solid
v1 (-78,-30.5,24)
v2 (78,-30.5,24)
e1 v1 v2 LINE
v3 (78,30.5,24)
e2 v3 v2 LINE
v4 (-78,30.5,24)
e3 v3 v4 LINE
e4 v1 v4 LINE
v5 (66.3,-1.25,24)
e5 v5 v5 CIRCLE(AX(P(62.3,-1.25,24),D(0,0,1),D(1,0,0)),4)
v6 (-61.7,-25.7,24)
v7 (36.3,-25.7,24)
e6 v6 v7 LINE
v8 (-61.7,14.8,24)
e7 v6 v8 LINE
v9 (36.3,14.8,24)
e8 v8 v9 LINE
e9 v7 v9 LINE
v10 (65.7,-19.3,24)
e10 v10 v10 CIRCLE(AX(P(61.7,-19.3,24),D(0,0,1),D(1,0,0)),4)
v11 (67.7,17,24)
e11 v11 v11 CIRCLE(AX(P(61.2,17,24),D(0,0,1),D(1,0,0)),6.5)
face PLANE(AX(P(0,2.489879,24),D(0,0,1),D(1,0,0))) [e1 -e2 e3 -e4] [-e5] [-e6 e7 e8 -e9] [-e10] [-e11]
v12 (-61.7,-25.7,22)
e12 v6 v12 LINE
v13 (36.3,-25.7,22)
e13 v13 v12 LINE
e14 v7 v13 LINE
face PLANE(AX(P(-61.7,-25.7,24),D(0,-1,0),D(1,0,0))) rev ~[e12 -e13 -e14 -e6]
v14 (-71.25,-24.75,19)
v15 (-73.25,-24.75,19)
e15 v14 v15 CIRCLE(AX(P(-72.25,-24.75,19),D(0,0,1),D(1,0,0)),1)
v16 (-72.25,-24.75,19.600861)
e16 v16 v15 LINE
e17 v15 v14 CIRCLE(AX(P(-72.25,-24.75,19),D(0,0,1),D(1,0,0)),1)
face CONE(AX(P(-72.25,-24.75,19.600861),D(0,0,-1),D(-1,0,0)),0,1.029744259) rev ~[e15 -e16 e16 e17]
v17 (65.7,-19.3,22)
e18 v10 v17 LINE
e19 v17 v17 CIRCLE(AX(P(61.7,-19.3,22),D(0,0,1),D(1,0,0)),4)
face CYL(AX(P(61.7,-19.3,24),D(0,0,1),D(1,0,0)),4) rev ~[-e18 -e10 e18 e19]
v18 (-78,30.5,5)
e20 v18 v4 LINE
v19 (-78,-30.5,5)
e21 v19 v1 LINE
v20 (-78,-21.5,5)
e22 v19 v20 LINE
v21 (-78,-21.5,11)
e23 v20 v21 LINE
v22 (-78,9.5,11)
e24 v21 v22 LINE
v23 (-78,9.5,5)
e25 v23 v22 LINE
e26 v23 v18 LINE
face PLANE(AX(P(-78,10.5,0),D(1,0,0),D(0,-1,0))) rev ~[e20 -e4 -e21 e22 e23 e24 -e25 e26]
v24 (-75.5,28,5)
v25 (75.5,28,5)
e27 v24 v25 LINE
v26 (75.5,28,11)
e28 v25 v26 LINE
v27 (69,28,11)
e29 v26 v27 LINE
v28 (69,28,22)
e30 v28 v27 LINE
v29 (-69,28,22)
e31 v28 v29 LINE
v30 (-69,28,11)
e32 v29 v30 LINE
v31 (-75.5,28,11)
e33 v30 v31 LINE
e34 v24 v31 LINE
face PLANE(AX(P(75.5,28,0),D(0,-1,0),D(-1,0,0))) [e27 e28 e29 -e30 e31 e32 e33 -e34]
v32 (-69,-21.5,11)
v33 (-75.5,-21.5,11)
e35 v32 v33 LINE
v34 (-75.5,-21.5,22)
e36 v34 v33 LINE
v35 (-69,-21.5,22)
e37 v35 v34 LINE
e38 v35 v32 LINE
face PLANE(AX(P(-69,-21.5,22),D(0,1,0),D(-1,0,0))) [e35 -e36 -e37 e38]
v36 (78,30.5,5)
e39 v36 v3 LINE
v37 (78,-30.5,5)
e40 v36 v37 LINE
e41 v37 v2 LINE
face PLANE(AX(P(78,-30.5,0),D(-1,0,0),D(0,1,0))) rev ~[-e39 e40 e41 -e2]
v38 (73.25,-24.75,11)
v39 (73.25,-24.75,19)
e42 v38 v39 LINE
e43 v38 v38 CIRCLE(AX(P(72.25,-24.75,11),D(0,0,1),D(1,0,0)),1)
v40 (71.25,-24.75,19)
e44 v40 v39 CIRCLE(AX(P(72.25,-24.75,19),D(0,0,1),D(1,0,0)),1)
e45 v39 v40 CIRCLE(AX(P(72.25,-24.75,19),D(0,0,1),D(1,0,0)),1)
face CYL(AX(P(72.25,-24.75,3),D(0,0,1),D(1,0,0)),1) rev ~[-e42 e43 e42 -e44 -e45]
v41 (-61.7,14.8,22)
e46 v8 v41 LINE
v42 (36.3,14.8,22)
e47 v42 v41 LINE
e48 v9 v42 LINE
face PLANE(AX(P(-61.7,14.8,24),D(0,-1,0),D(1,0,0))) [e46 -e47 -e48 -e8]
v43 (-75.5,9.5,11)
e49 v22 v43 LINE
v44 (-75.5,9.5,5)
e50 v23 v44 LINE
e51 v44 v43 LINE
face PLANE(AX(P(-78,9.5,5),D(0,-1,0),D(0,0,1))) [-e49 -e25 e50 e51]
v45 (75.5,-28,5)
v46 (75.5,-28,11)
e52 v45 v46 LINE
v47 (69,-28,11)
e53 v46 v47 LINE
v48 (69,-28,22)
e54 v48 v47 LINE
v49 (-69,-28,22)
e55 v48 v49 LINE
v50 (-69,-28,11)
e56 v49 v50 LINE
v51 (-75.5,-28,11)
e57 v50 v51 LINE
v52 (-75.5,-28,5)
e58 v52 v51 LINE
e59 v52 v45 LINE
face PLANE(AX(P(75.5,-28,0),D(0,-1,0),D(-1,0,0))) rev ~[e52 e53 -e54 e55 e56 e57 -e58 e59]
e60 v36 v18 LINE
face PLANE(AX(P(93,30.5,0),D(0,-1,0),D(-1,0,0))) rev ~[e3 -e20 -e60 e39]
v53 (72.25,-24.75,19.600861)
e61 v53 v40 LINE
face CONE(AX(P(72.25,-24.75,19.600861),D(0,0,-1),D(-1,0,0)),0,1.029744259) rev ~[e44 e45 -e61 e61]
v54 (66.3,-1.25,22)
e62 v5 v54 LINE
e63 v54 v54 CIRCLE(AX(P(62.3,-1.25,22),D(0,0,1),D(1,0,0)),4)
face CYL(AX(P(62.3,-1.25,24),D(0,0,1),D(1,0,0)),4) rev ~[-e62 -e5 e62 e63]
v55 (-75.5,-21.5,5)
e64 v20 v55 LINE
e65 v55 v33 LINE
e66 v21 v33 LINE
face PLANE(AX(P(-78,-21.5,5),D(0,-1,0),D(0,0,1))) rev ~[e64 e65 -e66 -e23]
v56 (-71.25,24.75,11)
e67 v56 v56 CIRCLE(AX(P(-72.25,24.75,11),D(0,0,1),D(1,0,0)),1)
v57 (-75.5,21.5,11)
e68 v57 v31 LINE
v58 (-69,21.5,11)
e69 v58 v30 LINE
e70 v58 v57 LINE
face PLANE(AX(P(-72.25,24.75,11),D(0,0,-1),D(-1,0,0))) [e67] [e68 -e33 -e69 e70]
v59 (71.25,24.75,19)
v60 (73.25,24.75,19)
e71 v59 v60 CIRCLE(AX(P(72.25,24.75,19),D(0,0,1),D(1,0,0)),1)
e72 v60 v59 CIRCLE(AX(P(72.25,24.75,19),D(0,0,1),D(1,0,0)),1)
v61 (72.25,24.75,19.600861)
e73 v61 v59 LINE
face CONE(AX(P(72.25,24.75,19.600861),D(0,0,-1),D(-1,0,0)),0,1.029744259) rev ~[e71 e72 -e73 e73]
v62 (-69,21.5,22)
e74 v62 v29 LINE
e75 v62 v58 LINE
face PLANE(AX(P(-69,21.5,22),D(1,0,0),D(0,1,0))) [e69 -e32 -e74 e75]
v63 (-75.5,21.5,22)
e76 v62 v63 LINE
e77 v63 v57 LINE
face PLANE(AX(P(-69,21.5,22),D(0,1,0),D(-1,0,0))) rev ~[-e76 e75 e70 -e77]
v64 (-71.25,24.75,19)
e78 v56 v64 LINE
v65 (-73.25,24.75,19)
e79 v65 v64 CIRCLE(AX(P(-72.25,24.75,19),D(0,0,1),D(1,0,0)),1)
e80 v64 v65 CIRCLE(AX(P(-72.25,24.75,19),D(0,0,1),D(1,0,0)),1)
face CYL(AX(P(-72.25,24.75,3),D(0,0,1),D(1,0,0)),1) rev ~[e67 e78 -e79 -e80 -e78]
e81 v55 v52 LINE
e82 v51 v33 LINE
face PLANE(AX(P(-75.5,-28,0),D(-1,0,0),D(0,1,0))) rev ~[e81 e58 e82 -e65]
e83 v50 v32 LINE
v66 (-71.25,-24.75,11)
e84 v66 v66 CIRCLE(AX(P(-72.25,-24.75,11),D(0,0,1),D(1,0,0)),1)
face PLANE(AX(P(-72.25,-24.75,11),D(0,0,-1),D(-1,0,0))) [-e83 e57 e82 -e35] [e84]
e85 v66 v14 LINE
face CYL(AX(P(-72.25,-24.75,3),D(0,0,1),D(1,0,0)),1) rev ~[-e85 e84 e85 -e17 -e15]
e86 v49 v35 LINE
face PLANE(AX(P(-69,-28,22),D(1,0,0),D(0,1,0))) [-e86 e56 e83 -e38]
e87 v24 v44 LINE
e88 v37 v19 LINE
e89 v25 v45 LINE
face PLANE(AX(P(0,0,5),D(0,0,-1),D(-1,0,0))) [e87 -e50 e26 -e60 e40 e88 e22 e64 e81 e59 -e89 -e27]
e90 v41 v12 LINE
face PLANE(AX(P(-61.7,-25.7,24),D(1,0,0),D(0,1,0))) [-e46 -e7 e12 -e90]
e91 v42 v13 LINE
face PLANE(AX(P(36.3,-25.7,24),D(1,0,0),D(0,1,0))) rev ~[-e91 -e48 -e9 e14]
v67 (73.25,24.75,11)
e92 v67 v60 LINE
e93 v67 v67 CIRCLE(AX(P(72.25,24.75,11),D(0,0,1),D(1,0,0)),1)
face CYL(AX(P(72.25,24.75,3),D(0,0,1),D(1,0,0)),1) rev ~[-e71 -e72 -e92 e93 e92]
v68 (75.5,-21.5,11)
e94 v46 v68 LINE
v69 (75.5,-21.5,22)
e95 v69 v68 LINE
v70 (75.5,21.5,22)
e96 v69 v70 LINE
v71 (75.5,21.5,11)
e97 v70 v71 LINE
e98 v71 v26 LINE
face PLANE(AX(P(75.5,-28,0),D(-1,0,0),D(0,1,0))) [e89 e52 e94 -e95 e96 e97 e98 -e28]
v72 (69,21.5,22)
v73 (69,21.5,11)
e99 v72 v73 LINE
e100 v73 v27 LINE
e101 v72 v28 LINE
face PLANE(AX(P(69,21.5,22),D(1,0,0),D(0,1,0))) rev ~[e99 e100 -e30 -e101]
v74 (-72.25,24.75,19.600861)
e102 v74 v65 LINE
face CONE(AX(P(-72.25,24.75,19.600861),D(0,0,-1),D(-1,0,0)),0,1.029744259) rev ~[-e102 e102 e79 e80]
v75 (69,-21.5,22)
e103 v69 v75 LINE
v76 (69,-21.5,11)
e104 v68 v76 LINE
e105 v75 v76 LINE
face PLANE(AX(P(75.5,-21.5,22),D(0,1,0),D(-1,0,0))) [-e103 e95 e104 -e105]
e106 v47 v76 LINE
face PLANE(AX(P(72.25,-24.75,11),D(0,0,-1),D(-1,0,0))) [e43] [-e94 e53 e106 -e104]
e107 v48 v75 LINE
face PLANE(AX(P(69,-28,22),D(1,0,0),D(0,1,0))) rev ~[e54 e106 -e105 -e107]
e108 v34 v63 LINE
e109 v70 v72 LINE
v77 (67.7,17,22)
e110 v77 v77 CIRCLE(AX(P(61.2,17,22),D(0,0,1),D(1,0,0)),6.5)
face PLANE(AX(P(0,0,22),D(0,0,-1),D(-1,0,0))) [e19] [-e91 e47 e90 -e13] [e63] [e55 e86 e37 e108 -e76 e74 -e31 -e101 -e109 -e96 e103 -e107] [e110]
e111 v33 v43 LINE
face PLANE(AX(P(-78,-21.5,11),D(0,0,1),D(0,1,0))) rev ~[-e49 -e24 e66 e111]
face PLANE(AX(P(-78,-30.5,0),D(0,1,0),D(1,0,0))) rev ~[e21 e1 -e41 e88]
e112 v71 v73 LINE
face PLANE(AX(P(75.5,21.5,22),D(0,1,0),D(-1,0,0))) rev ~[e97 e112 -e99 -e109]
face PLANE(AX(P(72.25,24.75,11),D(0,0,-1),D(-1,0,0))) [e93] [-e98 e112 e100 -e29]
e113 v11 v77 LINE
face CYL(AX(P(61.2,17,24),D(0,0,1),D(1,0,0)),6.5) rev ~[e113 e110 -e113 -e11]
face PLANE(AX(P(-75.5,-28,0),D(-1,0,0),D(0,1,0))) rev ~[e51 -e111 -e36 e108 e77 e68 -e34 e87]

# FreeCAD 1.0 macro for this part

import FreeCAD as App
import Part
import Sketcher
Q = App.Units.Quantity


def add_polygon(sketch, points):
    """Adds a closed chain of lines whose ends are joined by coincident constraints."""
    first, n = sketch.GeometryCount, len(points)
    for a, b in zip(points, points[1:] + points[:1]):
        sketch.addGeometry(Part.LineSegment(App.Vector(*a, 0), App.Vector(*b, 0)), False)
    for i in range(n):
        sketch.addConstraint(Sketcher.Constraint("Coincident", first + i, 2, first + (i + 1) % n, 1))

doc = App.newDocument("Part")
body = doc.addObject("PartDesign::Body", "Body")

# Sketch on XY plane
sketch1 = body.newObject("Sketcher::SketchObject", "Sketch")
sketch1.AttachmentSupport = (doc.getObject("XY_Plane"), [""])
sketch1.MapMode = "FlatFace"
add_polygon(sketch1, [(-93, 10.5), (-78, 10.5), (-78, -30.5), (78, -30.5), (78, 10.5), (93, 10.5), (93, 30.5), (-93, 30.5)])  # lines 0-7
sketch1.addConstraint(Sketcher.Constraint("Horizontal", 0))
sketch1.addConstraint(Sketcher.Constraint("Vertical", 1))
sketch1.addConstraint(Sketcher.Constraint("Horizontal", 2))
sketch1.addConstraint(Sketcher.Constraint("Vertical", 3))
sketch1.addConstraint(Sketcher.Constraint("Horizontal", 4))
sketch1.addConstraint(Sketcher.Constraint("Vertical", 5))
sketch1.addConstraint(Sketcher.Constraint("Horizontal", 6))
sketch1.addConstraint(Sketcher.Constraint("Vertical", 7))
sketch1.addConstraint(Sketcher.Constraint("Symmetric", 0, 2, 3, 2, -2))
sketch1.addConstraint(Sketcher.Constraint("Equal", 0, 4))
sketch1.addConstraint(Sketcher.Constraint("DistanceX", 0, 1, 0, 2, Q("15 mm")))
sketch1.addConstraint(Sketcher.Constraint("DistanceX", 2, 1, 2, 2, Q("156 mm")))
sketch1.addConstraint(Sketcher.Constraint("DistanceY", 1, 2, 1, 1, Q("41 mm")))
sketch1.addConstraint(Sketcher.Constraint("DistanceY", 5, 1, 5, 2, Q("20 mm")))
sketch1.addConstraint(Sketcher.Constraint("DistanceY", -1, 1, 0, 2, Q("10.5 mm")))
pad1 = body.newObject("PartDesign::Pad", "Pad")
pad1.Profile = sketch1
pad1.Length = 24

# Sketch on XY plane
sketch2 = body.newObject("Sketcher::SketchObject", "Sketch001")
sketch2.AttachmentSupport = (doc.getObject("XY_Plane"), [""])
sketch2.MapMode = "FlatFace"
add_polygon(sketch2, [(75.5, 28), (75.5, -28), (-75.5, -28), (-75.5, 28)])  # lines 0-3
sketch2.addConstraint(Sketcher.Constraint("Vertical", 0))
sketch2.addConstraint(Sketcher.Constraint("Horizontal", 1))
sketch2.addConstraint(Sketcher.Constraint("Vertical", 2))
sketch2.addConstraint(Sketcher.Constraint("Horizontal", 3))
sketch2.addConstraint(Sketcher.Constraint("Symmetric", 0, 2, 2, 2, -1, 1))
sketch2.addConstraint(Sketcher.Constraint("DistanceX", 1, 2, 1, 1, Q("151 mm")))
sketch2.addConstraint(Sketcher.Constraint("DistanceY", 0, 2, 0, 1, Q("56 mm")))
pocket1 = body.newObject("PartDesign::Pocket", "Pocket")
pocket1.Profile = sketch2
pocket1.Length = 22
pocket1.Reversed = True

# Sketch on XY plane
sketch3 = body.newObject("Sketcher::SketchObject", "Sketch002")
sketch3.AttachmentSupport = (doc.getObject("XY_Plane"), [""])
sketch3.MapMode = "FlatFace"
add_polygon(sketch3, [(78, 30.5), (78, -30.5), (-78, -30.5), (-78, 30.5)])  # lines 0-3
sketch3.addConstraint(Sketcher.Constraint("Vertical", 0))
sketch3.addConstraint(Sketcher.Constraint("Horizontal", 1))
sketch3.addConstraint(Sketcher.Constraint("Vertical", 2))
sketch3.addConstraint(Sketcher.Constraint("Horizontal", 3))
sketch3.addConstraint(Sketcher.Constraint("Symmetric", 0, 2, 2, 2, -1, 1))
sketch3.addConstraint(Sketcher.Constraint("DistanceX", 1, 2, 1, 1, Q("156 mm")))
sketch3.addConstraint(Sketcher.Constraint("DistanceY", 0, 2, 0, 1, Q("61 mm")))
pocket2 = body.newObject("PartDesign::Pocket", "Pocket001")
pocket2.Profile = sketch3
pocket2.Length = 5
pocket2.Reversed = True

# Sketch on XY plane
sketch4 = body.newObject("Sketcher::SketchObject", "Sketch003")
sketch4.AttachmentSupport = (doc.getObject("XY_Plane"), [""])
sketch4.MapMode = "FlatFace"
sketch4.AttachmentOffset = App.Placement(App.Vector(0, 0, 24), App.Rotation())
sketch4.addGeometry(Part.Circle(App.Vector(61.2, 17, 0), App.Vector(0, 0, 1), 6.5), False)  # 0
sketch4.addGeometry(Part.Circle(App.Vector(62.3, -1.25, 0), App.Vector(0, 0, 1), 4), False)  # 1
sketch4.addGeometry(Part.Circle(App.Vector(61.7, -19.3, 0), App.Vector(0, 0, 1), 4), False)  # 2
add_polygon(sketch4, [(-61.7, 14.8), (-61.7, -25.7), (36.3, -25.7), (36.3, 14.8)])  # lines 3-6
sketch4.addConstraint(Sketcher.Constraint("Vertical", 3))
sketch4.addConstraint(Sketcher.Constraint("Horizontal", 4))
sketch4.addConstraint(Sketcher.Constraint("Vertical", 5))
sketch4.addConstraint(Sketcher.Constraint("Horizontal", 6))
sketch4.addConstraint(Sketcher.Constraint("Equal", 1, 2))
sketch4.addConstraint(Sketcher.Constraint("Diameter", 0, Q("13 mm")))
sketch4.addConstraint(Sketcher.Constraint("Diameter", 1, Q("8 mm")))
sketch4.addConstraint(Sketcher.Constraint("DistanceX", 4, 1, 4, 2, Q("98 mm")))
sketch4.addConstraint(Sketcher.Constraint("DistanceY", 3, 2, 3, 1, Q("40.5 mm")))
sketch4.addConstraint(Sketcher.Constraint("DistanceY", -1, 1, 0, 3, Q("17 mm")))
sketch4.addConstraint(Sketcher.Constraint("DistanceX", 3, 2, 1, 3, Q("124 mm")))
sketch4.addConstraint(Sketcher.Constraint("DistanceX", -1, 1, 0, 3, Q("61.2 mm")))
sketch4.addConstraint(Sketcher.Constraint("DistanceX", -1, 1, 1, 3, Q("62.3 mm")))
sketch4.addConstraint(Sketcher.Constraint("DistanceX", -1, 1, 2, 3, Q("61.7 mm")))
sketch4.addConstraint(Sketcher.Constraint("DistanceY", 2, 3, -1, 1, Q("19.3 mm")))
sketch4.addConstraint(Sketcher.Constraint("DistanceY", 3, 2, -1, 1, Q("25.7 mm")))
sketch4.addConstraint(Sketcher.Constraint("DistanceY", 1, 3, -1, 1, Q("1.25 mm")))
pocket3 = body.newObject("PartDesign::Pocket", "Pocket002")
pocket3.Profile = sketch4
pocket3.Length = 4

# Sketch on XY plane
sketch5 = body.newObject("Sketcher::SketchObject", "Sketch004")
sketch5.AttachmentSupport = (doc.getObject("XY_Plane"), [""])
sketch5.MapMode = "FlatFace"
sketch5.AttachmentOffset = App.Placement(App.Vector(0, 0, 24), App.Rotation())
sketch5.addGeometry(Part.Circle(App.Vector(-85, 20.5, 0), App.Vector(0, 0, 1), 2.25), False)
sketch5.addGeometry(Part.Circle(App.Vector(85, 20.376125, 0), App.Vector(0, 0, 1), 2.25), False)
sketch5.addConstraint(Sketcher.Constraint("Equal", 0, 1))
sketch5.addConstraint(Sketcher.Constraint("Diameter", 0, Q("4.5 mm")))
sketch5.addConstraint(Sketcher.Constraint("DistanceX", 0, 3, -1, 1, Q("85 mm")))
sketch5.addConstraint(Sketcher.Constraint("DistanceX", -1, 1, 1, 3, Q("85 mm")))
sketch5.addConstraint(Sketcher.Constraint("DistanceY", -1, 1, 0, 3, Q("20.5 mm")))
sketch5.addConstraint(Sketcher.Constraint("DistanceY", -1, 1, 1, 3, Q("20.376125 mm")))
doc.recompute()
hole = body.newObject("PartDesign::Hole", "Hole")
hole.Profile = sketch5
hole.ThreadType = "None"
hole.Diameter = 4.5
hole.DepthType = "ThroughAll"
hole.HoleCutType = "Counterbore"
hole.HoleCutDiameter = 8
hole.HoleCutDepth = 4.4

# Sketch on XY plane
sketch6 = body.newObject("Sketcher::SketchObject", "Sketch005")
sketch6.AttachmentSupport = (doc.getObject("XY_Plane"), [""])
sketch6.MapMode = "FlatFace"
sketch6.AttachmentOffset = App.Placement(App.Vector(0, 0, 22), App.Rotation())
add_polygon(sketch6, [(75.5, 28), (75.5, 21.5), (69, 21.5), (69, 28)])  # lines 0-3
add_polygon(sketch6, [(75.5, -21.5), (75.5, -28), (69, -28), (69, -21.5)])  # lines 4-7
add_polygon(sketch6, [(-69, 28), (-69, 21.5), (-75.5, 21.5), (-75.5, 28)])  # lines 8-11
add_polygon(sketch6, [(-69, -21.5), (-69, -28), (-75.5, -28), (-75.5, -21.5)])  # lines 12-15
sketch6.addConstraint(Sketcher.Constraint("Vertical", 0))
sketch6.addConstraint(Sketcher.Constraint("Horizontal", 1))
sketch6.addConstraint(Sketcher.Constraint("Vertical", 2))
sketch6.addConstraint(Sketcher.Constraint("Horizontal", 3))
sketch6.addConstraint(Sketcher.Constraint("Vertical", 4))
sketch6.addConstraint(Sketcher.Constraint("Horizontal", 5))
sketch6.addConstraint(Sketcher.Constraint("Vertical", 6))
sketch6.addConstraint(Sketcher.Constraint("Horizontal", 7))
sketch6.addConstraint(Sketcher.Constraint("Vertical", 8))
sketch6.addConstraint(Sketcher.Constraint("Horizontal", 9))
sketch6.addConstraint(Sketcher.Constraint("Vertical", 10))
sketch6.addConstraint(Sketcher.Constraint("Horizontal", 11))
sketch6.addConstraint(Sketcher.Constraint("Vertical", 12))
sketch6.addConstraint(Sketcher.Constraint("Horizontal", 13))
sketch6.addConstraint(Sketcher.Constraint("Vertical", 14))
sketch6.addConstraint(Sketcher.Constraint("Horizontal", 15))
sketch6.addConstraint(Sketcher.Constraint("Symmetric", 6, 2, 8, 2, -1, 1))
sketch6.addConstraint(Sketcher.Constraint("Symmetric", 4, 2, 10, 2, -1, 1))
sketch6.addConstraint(Sketcher.Constraint("Symmetric", 2, 2, 12, 2, -1, 1))
sketch6.addConstraint(Sketcher.Constraint("Symmetric", 0, 2, 14, 2, -1, 1))
sketch6.addConstraint(Sketcher.Constraint("Symmetric", 1, 2, 8, 2, -2))
sketch6.addConstraint(Sketcher.Constraint("Symmetric", 3, 2, 10, 2, -2))
sketch6.addConstraint(Sketcher.Constraint("Equal", 15, 0))
sketch6.addConstraint(Sketcher.Constraint("DistanceX", 1, 2, 1, 1, Q("6.5 mm")))
sketch6.addConstraint(Sketcher.Constraint("DistanceX", -1, 1, 1, 2, Q("69 mm")))
sketch6.addConstraint(Sketcher.Constraint("DistanceY", -1, 1, 2, 2, Q("28 mm")))
pad2 = body.newObject("PartDesign::Pad", "Pad001")
pad2.Profile = sketch6
pad2.Length = 11
pad2.Reversed = True

# Sketch on XY plane
sketch7 = body.newObject("Sketcher::SketchObject", "Sketch006")
sketch7.AttachmentSupport = (doc.getObject("XY_Plane"), [""])
sketch7.MapMode = "FlatFace"
sketch7.AttachmentOffset = App.Placement(App.Vector(0, 0, 11), App.Rotation())
sketch7.addGeometry(Part.Circle(App.Vector(72.25, 24.75, 0), App.Vector(0, 0, 1), 1), False)
sketch7.addGeometry(Part.Circle(App.Vector(72.25, -24.75, 0), App.Vector(0, 0, 1), 1), False)
sketch7.addGeometry(Part.Circle(App.Vector(-72.25, 24.75, 0), App.Vector(0, 0, 1), 1), False)
sketch7.addGeometry(Part.Circle(App.Vector(-72.25, -24.75, 0), App.Vector(0, 0, 1), 1), False)
sketch7.addConstraint(Sketcher.Constraint("Equal", 0, 1))
sketch7.addConstraint(Sketcher.Constraint("Equal", 1, 2))
sketch7.addConstraint(Sketcher.Constraint("Equal", 2, 3))
sketch7.addConstraint(Sketcher.Constraint("Symmetric", 1, 3, 2, 3, -1, 1))
sketch7.addConstraint(Sketcher.Constraint("Symmetric", 0, 3, 3, 3, -1, 1))
sketch7.addConstraint(Sketcher.Constraint("Symmetric", 0, 3, 2, 3, -2))
sketch7.addConstraint(Sketcher.Constraint("Diameter", 0, Q("2 mm")))
sketch7.addConstraint(Sketcher.Constraint("DistanceY", 1, 3, 0, 3, Q("49.5 mm")))
sketch7.addConstraint(Sketcher.Constraint("DistanceX", 2, 3, 0, 3, Q("144.5 mm")))
doc.recompute()
hole2 = body.newObject("PartDesign::Hole", "Hole001")
hole2.Profile = sketch7
hole2.ThreadType = "None"
hole2.Diameter = 2
hole2.DepthType = "Dimension"
hole2.Depth = 8
hole2.DrillPoint = "Angled"
hole2.DrillPointAngle = 118
hole2.Reversed = True

# Sketch on XY plane
sketch8 = body.newObject("Sketcher::SketchObject", "Sketch007")
sketch8.AttachmentSupport = (doc.getObject("XY_Plane"), [""])
sketch8.MapMode = "FlatFace"
add_polygon(sketch8, [(93, 30.5), (93, 10.5), (78, 10.5), (78, 30.5)])  # lines 0-3
add_polygon(sketch8, [(-78, 30.5), (-78, 10.5), (-93, 10.5), (-93, 30.5)])  # lines 4-7
sketch8.addConstraint(Sketcher.Constraint("Vertical", 0))
sketch8.addConstraint(Sketcher.Constraint("Horizontal", 1))
sketch8.addConstraint(Sketcher.Constraint("Vertical", 2))
sketch8.addConstraint(Sketcher.Constraint("Horizontal", 3))
sketch8.addConstraint(Sketcher.Constraint("Vertical", 4))
sketch8.addConstraint(Sketcher.Constraint("Horizontal", 5))
sketch8.addConstraint(Sketcher.Constraint("Vertical", 6))
sketch8.addConstraint(Sketcher.Constraint("Horizontal", 7))
sketch8.addConstraint(Sketcher.Constraint("Symmetric", 1, 2, 4, 2, -2))
sketch8.addConstraint(Sketcher.Constraint("Symmetric", 3, 2, 6, 2, -2))
sketch8.addConstraint(Sketcher.Constraint("DistanceX", 1, 2, 1, 1, Q("15 mm")))
sketch8.addConstraint(Sketcher.Constraint("DistanceY", 0, 2, 0, 1, Q("20 mm")))
sketch8.addConstraint(Sketcher.Constraint("DistanceX", -1, 1, 0, 2, Q("93 mm")))
sketch8.addConstraint(Sketcher.Constraint("DistanceY", -1, 1, 0, 2, Q("10.5 mm")))
pocket4 = body.newObject("PartDesign::Pocket", "Pocket003")
pocket4.Profile = sketch8
pocket4.Length = 24
pocket4.Reversed = True

# Sketch on YZ plane
sketch9 = body.newObject("Sketcher::SketchObject", "Sketch008")
sketch9.AttachmentSupport = (doc.getObject("YZ_Plane"), [""])
sketch9.MapMode = "FlatFace"
sketch9.AttachmentOffset = App.Placement(App.Vector(0, 0, -78), App.Rotation())
add_polygon(sketch9, [(9.5, 5), (-21.5, 5), (-21.5, 11), (9.5, 11)])  # lines 0-3
sketch9.addConstraint(Sketcher.Constraint("Horizontal", 0))
sketch9.addConstraint(Sketcher.Constraint("Vertical", 1))
sketch9.addConstraint(Sketcher.Constraint("Horizontal", 2))
sketch9.addConstraint(Sketcher.Constraint("Vertical", 3))
sketch9.addConstraint(Sketcher.Constraint("DistanceX", 0, 2, 0, 1, Q("31 mm")))
sketch9.addConstraint(Sketcher.Constraint("DistanceY", 1, 1, 1, 2, Q("6 mm")))
sketch9.addConstraint(Sketcher.Constraint("DistanceY", -1, 1, 0, 2, Q("5 mm")))
sketch9.addConstraint(Sketcher.Constraint("DistanceX", 0, 2, -1, 1, Q("21.5 mm")))
pocket5 = body.newObject("PartDesign::Pocket", "Pocket004")
pocket5.Profile = sketch9
pocket5.Length = 3
pocket5.Reversed = True

doc.recompute()
